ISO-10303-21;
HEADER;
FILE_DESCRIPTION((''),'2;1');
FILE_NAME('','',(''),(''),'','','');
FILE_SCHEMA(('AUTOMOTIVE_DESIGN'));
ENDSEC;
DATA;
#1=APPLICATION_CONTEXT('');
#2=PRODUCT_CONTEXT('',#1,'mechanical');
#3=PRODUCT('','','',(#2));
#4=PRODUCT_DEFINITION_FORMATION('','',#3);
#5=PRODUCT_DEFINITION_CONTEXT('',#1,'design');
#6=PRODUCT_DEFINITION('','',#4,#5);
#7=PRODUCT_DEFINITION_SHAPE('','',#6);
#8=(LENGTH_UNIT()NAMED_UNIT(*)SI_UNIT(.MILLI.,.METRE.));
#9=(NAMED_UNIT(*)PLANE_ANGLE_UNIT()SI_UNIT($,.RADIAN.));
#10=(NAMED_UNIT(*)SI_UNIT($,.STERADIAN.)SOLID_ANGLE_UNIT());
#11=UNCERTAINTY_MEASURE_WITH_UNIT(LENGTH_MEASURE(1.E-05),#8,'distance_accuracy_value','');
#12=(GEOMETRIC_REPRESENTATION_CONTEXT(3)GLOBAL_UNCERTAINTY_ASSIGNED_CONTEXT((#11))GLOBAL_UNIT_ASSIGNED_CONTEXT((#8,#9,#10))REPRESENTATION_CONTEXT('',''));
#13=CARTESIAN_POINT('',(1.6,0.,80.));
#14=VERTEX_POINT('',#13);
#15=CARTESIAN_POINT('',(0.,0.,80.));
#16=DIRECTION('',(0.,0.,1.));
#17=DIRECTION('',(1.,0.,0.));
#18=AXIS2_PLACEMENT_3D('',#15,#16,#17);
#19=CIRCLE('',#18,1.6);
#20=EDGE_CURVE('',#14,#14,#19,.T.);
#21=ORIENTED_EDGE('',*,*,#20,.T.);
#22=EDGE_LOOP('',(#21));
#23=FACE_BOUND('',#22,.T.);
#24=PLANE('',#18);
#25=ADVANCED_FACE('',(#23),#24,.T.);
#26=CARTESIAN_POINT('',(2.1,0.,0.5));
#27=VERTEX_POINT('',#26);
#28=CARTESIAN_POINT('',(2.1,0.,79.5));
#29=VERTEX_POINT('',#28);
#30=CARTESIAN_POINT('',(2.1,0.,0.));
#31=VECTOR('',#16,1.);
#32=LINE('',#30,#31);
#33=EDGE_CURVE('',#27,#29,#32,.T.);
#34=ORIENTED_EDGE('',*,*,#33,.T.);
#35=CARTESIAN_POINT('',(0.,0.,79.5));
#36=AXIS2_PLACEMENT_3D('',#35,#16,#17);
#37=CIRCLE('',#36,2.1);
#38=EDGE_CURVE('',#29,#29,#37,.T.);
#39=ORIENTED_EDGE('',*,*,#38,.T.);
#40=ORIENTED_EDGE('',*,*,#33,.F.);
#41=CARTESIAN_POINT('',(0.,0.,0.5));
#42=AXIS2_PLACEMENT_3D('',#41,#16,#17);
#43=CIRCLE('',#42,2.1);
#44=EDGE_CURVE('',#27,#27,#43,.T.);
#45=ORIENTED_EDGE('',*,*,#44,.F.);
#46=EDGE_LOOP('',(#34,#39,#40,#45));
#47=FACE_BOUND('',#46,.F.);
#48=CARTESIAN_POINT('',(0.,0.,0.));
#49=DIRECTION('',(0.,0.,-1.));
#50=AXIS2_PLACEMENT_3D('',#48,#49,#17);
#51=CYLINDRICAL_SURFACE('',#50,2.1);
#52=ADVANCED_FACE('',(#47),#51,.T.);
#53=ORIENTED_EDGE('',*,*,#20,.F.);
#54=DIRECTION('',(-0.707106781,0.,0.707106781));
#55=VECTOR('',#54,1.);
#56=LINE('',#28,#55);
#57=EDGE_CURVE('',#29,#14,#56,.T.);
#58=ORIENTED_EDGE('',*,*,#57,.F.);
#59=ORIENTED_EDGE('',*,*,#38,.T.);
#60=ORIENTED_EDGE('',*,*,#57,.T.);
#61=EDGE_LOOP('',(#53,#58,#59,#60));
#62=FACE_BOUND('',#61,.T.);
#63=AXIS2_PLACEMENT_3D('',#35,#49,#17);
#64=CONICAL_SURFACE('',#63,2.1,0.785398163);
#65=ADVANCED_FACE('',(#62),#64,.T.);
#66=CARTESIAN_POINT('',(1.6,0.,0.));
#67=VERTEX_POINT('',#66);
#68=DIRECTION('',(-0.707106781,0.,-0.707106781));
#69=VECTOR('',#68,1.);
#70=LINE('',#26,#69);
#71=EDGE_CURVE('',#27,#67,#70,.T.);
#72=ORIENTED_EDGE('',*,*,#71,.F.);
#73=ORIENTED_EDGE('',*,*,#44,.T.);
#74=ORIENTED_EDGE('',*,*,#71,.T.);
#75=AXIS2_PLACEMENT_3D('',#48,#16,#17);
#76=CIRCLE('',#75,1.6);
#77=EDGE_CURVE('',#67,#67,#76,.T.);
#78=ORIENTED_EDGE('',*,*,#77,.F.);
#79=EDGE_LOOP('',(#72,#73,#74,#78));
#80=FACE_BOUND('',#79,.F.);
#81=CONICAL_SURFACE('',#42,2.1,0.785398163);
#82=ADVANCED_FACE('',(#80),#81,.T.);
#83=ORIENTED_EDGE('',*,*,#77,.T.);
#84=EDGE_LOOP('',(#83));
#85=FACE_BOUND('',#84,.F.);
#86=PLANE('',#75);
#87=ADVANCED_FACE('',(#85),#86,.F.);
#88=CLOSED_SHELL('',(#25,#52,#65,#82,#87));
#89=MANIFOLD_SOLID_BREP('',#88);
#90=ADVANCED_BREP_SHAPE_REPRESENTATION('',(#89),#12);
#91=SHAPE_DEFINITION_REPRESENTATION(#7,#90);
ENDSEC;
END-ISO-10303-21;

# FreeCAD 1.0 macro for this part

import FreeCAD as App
import Part
import Sketcher

V = App.Vector
Q = App.Units.Quantity


def edges_at(feature, points):
    """Names of the edges that pass closest to the given points."""
    edges = feature.Shape.Edges
    near = lambda p: min(range(len(edges)), key=lambda i: edges[i].distToShape(Part.Vertex(*p))[0])
    return sorted({f"Edge{near(p) + 1}" for p in points})

doc = App.newDocument("Part")
body = doc.addObject("PartDesign::Body", "Body")

# Sketch on XY plane
sketch1 = body.newObject("Sketcher::SketchObject", "Sketch")
sketch1.AttachmentSupport = (doc.getObject("XY_Plane"), [""])
sketch1.MapMode = "FlatFace"
sketch1.addGeometry(Part.Circle(V(0, 0, 0), V(0, 0, 1), 2.1), False)
sketch1.addConstraint(Sketcher.Constraint("Coincident", 0, 3, -1, 1))
sketch1.addConstraint(Sketcher.Constraint("Diameter", 0, Q("4.2 mm")))
pad1 = body.newObject("PartDesign::Pad", "Pad")
pad1.Profile = sketch1
pad1.Length = 80
doc.recompute()

chamfer = body.newObject("PartDesign::Chamfer", "Chamfer")
chamfer.Base = (pad1, edges_at(pad1, [(-2.1, 0, 80), (-2.1, 0, 0)]))
chamfer.Size = 0.5

doc.recompute()
